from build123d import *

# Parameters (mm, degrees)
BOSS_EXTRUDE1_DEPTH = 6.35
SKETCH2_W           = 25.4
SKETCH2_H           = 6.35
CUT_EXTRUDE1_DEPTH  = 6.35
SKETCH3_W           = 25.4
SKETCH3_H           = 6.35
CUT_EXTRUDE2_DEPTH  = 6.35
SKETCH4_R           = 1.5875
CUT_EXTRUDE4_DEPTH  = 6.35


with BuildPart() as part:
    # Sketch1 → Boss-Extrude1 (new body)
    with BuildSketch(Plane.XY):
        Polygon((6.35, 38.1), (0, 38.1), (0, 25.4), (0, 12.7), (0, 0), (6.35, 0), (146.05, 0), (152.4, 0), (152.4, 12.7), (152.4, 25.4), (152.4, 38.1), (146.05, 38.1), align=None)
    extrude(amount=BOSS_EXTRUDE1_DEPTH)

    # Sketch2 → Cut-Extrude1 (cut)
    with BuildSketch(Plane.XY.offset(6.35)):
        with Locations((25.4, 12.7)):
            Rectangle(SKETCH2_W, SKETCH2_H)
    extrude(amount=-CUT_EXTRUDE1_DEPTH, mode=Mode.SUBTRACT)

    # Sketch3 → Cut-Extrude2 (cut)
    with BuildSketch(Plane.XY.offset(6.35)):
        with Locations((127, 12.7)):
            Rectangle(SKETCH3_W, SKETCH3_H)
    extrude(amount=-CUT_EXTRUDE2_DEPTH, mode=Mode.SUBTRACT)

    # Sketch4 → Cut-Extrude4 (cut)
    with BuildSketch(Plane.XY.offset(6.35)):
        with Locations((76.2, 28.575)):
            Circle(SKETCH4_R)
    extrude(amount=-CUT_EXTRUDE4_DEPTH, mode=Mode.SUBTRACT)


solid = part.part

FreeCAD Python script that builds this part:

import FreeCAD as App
import Part
import Sketcher

V = App.Vector
Q = App.Units.Quantity


def add_polygon(sketch, points):
    """Adds a closed chain of lines whose ends are joined by coincident constraints."""
    first, n = sketch.GeometryCount, len(points)
    for a, b in zip(points, points[1:] + points[:1]):
        sketch.addGeometry(Part.LineSegment(App.Vector(*a, 0), App.Vector(*b, 0)), False)
    for i in range(n):
        sketch.addConstraint(Sketcher.Constraint("Coincident", first + i, 2, first + (i + 1) % n, 1))

doc = App.newDocument("Part")
body = doc.addObject("PartDesign::Body", "Body")

sketch1 = body.newObject("Sketcher::SketchObject", "Sketch")
sketch1.AttachmentSupport = (doc.getObject("XY_Plane"), [""])
sketch1.MapMode = "FlatFace"
add_polygon(sketch1, [(0, 38), (0, 0), (152, 0), (152, 38)])
sketch1.addConstraint([
    Sketcher.Constraint("Vertical", 0),
    Sketcher.Constraint("Horizontal", 1),
    Sketcher.Constraint("Vertical", 2),
    Sketcher.Constraint("Horizontal", 3),
    Sketcher.Constraint("Coincident", 0, 2, -1, 1),
    Sketcher.Constraint("DistanceX", 1, 1, 1, 2, Q("6 in")),
    Sketcher.Constraint("DistanceY", 0, 2, 0, 1, Q("1.5 in")),
])
pad1 = body.newObject("PartDesign::Pad", "Pad")
pad1.Profile = sketch1
pad1.Length = Q("0.25 in")

sketch2 = body.newObject("Sketcher::SketchObject", "Sketch001")
sketch2.AttachmentSupport = (doc.getObject("XY_Plane"), [""])
sketch2.MapMode = "FlatFace"
sketch2.AttachmentOffset = App.Placement(V(0, 0, 0.25 * 25.4), App.Rotation())
add_polygon(sketch2, [(13, 16), (13, 10), (38, 10), (38, 16)])
sketch2.addConstraint([
    Sketcher.Constraint("Vertical", 0),
    Sketcher.Constraint("Horizontal", 1),
    Sketcher.Constraint("Vertical", 2),
    Sketcher.Constraint("Horizontal", 3),
    Sketcher.Constraint("DistanceX", 1, 1, 1, 2, Q("1 in")),
    Sketcher.Constraint("DistanceY", 0, 2, 0, 1, Q("0.25 in")),
    Sketcher.Constraint("DistanceX", -1, 1, 0, 2, Q("0.5 in")),
    Sketcher.Constraint("DistanceY", -1, 1, 0, 2, Q("0.375 in")),
])
pocket1 = body.newObject("PartDesign::Pocket", "Pocket")
pocket1.Profile = sketch2
pocket1.Length = Q("0.25 in")

sketch3 = body.newObject("Sketcher::SketchObject", "Sketch002")
sketch3.AttachmentSupport = (doc.getObject("XY_Plane"), [""])
sketch3.MapMode = "FlatFace"
sketch3.AttachmentOffset = App.Placement(V(0, 0, 0.25 * 25.4), App.Rotation())
add_polygon(sketch3, [(114, 16), (114, 10), (140, 10), (140, 16)])
sketch3.addConstraint([
    Sketcher.Constraint("Vertical", 0),
    Sketcher.Constraint("Horizontal", 1),
    Sketcher.Constraint("Vertical", 2),
    Sketcher.Constraint("Horizontal", 3),
    Sketcher.Constraint("DistanceX", 1, 1, 1, 2, Q("1 in")),
    Sketcher.Constraint("DistanceY", 0, 2, 0, 1, Q("0.25 in")),
    Sketcher.Constraint("DistanceX", -1, 1, 0, 2, Q("4.5 in")),
    Sketcher.Constraint("DistanceY", -1, 1, 0, 2, Q("0.375 in")),
])
pocket2 = body.newObject("PartDesign::Pocket", "Pocket001")
pocket2.Profile = sketch3
pocket2.Length = Q("0.25 in")

sketch4 = body.newObject("Sketcher::SketchObject", "Sketch003")
sketch4.AttachmentSupport = (doc.getObject("XY_Plane"), [""])
sketch4.MapMode = "FlatFace"
sketch4.AttachmentOffset = App.Placement(V(0, 0, 0.25 * 25.4), App.Rotation())
sketch4.addGeometry(Part.Circle(V(76.2, 28.6, 0), V(0, 0, 1), 1.6), False)
sketch4.addConstraint([
    Sketcher.Constraint("Diameter", 0, Q("0.125 in")),
    Sketcher.Constraint("DistanceX", -1, 1, 0, 3, Q("3 in")),
    Sketcher.Constraint("DistanceY", -1, 1, 0, 3, Q("1.125 in")),
])
pocket3 = body.newObject("PartDesign::Pocket", "Pocket002")
pocket3.Profile = sketch4
pocket3.Length = Q("0.25 in")

doc.recompute()
